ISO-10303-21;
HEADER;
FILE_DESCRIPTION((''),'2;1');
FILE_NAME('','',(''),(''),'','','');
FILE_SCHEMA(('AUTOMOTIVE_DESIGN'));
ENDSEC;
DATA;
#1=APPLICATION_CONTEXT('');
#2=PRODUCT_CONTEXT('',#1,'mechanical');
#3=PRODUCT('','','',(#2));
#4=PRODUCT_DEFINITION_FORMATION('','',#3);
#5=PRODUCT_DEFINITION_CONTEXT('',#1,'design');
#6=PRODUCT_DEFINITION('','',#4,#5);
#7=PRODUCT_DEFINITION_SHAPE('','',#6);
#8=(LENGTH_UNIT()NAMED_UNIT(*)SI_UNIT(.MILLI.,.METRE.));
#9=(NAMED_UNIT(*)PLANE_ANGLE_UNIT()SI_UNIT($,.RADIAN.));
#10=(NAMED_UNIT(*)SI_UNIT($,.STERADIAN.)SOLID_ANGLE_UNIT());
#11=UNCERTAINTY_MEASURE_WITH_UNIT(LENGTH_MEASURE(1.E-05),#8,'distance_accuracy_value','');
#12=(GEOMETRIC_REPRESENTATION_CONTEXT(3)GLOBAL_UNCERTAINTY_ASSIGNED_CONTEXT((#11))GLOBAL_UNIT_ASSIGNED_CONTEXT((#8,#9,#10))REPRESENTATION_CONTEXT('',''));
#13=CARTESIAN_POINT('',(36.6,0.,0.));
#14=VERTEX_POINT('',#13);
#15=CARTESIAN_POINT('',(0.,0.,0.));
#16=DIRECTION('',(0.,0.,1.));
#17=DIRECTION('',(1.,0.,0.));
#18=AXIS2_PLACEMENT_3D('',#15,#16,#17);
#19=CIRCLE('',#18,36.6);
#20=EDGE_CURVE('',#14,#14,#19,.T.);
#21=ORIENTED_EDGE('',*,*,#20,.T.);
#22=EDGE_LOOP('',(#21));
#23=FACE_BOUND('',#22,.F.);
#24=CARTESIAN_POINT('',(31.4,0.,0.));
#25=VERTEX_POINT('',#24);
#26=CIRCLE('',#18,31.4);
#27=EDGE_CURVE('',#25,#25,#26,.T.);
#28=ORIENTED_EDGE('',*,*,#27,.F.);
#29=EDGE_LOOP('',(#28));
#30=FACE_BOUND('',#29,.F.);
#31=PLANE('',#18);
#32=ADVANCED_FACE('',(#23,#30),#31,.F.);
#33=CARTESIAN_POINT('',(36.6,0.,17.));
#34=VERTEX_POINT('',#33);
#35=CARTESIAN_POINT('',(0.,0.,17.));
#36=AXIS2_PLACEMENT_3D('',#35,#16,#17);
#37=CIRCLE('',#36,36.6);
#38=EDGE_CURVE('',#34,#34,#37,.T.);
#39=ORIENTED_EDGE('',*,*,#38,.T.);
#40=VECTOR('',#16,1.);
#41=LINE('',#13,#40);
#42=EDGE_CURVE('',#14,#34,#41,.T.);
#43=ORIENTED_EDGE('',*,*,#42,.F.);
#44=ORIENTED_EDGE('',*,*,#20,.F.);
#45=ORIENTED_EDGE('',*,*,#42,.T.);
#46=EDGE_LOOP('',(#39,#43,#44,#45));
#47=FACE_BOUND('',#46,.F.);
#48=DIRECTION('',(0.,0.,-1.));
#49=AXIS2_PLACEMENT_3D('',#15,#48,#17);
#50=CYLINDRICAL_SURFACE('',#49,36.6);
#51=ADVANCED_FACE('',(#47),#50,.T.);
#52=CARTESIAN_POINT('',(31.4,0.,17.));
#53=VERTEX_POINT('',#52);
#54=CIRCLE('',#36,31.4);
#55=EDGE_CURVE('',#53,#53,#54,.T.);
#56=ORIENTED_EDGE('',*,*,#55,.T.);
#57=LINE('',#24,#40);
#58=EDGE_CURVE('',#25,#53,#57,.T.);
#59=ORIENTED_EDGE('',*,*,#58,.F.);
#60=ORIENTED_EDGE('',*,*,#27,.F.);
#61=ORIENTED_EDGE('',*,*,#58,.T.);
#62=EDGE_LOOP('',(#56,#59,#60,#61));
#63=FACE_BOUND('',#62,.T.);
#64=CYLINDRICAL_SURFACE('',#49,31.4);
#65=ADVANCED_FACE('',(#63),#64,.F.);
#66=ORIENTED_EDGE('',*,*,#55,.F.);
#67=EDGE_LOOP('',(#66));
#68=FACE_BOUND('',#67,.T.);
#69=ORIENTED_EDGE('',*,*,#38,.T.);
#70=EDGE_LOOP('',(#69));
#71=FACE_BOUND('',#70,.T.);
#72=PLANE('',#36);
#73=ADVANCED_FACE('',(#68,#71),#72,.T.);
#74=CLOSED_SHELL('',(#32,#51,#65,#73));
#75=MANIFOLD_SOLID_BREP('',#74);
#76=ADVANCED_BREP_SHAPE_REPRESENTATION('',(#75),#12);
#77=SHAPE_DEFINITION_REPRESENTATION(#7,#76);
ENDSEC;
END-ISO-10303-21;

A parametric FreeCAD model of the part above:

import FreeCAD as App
import Part
import Sketcher
Q = App.Units.Quantity

doc = App.newDocument("Part")
body = doc.addObject("PartDesign::Body", "Body")

# Sketch on XY plane
sketch1 = body.newObject("Sketcher::SketchObject", "Sketch")
sketch1.AttachmentSupport = (doc.getObject("XY_Plane"), [""])
sketch1.MapMode = "FlatFace"
sketch1.addGeometry([
    Part.Circle(App.Vector(0, 0, 0), App.Vector(0, 0, 1), 36.6),
    Part.Circle(App.Vector(0, 0, 0), App.Vector(0, 0, 1), 31.4),
], False)
sketch1.addConstraint([
    Sketcher.Constraint("Coincident", 0, 3, -1, 1),
    Sketcher.Constraint("Coincident", 1, 3, -1, 1),
    Sketcher.Constraint("Diameter", 0, Q("73.2 mm")),
    Sketcher.Constraint("Diameter", 1, Q("62.8 mm")),
])
pad1 = body.newObject("PartDesign::Pad", "Pad")
pad1.Profile = sketch1
pad1.Length = 17

doc.recompute()
